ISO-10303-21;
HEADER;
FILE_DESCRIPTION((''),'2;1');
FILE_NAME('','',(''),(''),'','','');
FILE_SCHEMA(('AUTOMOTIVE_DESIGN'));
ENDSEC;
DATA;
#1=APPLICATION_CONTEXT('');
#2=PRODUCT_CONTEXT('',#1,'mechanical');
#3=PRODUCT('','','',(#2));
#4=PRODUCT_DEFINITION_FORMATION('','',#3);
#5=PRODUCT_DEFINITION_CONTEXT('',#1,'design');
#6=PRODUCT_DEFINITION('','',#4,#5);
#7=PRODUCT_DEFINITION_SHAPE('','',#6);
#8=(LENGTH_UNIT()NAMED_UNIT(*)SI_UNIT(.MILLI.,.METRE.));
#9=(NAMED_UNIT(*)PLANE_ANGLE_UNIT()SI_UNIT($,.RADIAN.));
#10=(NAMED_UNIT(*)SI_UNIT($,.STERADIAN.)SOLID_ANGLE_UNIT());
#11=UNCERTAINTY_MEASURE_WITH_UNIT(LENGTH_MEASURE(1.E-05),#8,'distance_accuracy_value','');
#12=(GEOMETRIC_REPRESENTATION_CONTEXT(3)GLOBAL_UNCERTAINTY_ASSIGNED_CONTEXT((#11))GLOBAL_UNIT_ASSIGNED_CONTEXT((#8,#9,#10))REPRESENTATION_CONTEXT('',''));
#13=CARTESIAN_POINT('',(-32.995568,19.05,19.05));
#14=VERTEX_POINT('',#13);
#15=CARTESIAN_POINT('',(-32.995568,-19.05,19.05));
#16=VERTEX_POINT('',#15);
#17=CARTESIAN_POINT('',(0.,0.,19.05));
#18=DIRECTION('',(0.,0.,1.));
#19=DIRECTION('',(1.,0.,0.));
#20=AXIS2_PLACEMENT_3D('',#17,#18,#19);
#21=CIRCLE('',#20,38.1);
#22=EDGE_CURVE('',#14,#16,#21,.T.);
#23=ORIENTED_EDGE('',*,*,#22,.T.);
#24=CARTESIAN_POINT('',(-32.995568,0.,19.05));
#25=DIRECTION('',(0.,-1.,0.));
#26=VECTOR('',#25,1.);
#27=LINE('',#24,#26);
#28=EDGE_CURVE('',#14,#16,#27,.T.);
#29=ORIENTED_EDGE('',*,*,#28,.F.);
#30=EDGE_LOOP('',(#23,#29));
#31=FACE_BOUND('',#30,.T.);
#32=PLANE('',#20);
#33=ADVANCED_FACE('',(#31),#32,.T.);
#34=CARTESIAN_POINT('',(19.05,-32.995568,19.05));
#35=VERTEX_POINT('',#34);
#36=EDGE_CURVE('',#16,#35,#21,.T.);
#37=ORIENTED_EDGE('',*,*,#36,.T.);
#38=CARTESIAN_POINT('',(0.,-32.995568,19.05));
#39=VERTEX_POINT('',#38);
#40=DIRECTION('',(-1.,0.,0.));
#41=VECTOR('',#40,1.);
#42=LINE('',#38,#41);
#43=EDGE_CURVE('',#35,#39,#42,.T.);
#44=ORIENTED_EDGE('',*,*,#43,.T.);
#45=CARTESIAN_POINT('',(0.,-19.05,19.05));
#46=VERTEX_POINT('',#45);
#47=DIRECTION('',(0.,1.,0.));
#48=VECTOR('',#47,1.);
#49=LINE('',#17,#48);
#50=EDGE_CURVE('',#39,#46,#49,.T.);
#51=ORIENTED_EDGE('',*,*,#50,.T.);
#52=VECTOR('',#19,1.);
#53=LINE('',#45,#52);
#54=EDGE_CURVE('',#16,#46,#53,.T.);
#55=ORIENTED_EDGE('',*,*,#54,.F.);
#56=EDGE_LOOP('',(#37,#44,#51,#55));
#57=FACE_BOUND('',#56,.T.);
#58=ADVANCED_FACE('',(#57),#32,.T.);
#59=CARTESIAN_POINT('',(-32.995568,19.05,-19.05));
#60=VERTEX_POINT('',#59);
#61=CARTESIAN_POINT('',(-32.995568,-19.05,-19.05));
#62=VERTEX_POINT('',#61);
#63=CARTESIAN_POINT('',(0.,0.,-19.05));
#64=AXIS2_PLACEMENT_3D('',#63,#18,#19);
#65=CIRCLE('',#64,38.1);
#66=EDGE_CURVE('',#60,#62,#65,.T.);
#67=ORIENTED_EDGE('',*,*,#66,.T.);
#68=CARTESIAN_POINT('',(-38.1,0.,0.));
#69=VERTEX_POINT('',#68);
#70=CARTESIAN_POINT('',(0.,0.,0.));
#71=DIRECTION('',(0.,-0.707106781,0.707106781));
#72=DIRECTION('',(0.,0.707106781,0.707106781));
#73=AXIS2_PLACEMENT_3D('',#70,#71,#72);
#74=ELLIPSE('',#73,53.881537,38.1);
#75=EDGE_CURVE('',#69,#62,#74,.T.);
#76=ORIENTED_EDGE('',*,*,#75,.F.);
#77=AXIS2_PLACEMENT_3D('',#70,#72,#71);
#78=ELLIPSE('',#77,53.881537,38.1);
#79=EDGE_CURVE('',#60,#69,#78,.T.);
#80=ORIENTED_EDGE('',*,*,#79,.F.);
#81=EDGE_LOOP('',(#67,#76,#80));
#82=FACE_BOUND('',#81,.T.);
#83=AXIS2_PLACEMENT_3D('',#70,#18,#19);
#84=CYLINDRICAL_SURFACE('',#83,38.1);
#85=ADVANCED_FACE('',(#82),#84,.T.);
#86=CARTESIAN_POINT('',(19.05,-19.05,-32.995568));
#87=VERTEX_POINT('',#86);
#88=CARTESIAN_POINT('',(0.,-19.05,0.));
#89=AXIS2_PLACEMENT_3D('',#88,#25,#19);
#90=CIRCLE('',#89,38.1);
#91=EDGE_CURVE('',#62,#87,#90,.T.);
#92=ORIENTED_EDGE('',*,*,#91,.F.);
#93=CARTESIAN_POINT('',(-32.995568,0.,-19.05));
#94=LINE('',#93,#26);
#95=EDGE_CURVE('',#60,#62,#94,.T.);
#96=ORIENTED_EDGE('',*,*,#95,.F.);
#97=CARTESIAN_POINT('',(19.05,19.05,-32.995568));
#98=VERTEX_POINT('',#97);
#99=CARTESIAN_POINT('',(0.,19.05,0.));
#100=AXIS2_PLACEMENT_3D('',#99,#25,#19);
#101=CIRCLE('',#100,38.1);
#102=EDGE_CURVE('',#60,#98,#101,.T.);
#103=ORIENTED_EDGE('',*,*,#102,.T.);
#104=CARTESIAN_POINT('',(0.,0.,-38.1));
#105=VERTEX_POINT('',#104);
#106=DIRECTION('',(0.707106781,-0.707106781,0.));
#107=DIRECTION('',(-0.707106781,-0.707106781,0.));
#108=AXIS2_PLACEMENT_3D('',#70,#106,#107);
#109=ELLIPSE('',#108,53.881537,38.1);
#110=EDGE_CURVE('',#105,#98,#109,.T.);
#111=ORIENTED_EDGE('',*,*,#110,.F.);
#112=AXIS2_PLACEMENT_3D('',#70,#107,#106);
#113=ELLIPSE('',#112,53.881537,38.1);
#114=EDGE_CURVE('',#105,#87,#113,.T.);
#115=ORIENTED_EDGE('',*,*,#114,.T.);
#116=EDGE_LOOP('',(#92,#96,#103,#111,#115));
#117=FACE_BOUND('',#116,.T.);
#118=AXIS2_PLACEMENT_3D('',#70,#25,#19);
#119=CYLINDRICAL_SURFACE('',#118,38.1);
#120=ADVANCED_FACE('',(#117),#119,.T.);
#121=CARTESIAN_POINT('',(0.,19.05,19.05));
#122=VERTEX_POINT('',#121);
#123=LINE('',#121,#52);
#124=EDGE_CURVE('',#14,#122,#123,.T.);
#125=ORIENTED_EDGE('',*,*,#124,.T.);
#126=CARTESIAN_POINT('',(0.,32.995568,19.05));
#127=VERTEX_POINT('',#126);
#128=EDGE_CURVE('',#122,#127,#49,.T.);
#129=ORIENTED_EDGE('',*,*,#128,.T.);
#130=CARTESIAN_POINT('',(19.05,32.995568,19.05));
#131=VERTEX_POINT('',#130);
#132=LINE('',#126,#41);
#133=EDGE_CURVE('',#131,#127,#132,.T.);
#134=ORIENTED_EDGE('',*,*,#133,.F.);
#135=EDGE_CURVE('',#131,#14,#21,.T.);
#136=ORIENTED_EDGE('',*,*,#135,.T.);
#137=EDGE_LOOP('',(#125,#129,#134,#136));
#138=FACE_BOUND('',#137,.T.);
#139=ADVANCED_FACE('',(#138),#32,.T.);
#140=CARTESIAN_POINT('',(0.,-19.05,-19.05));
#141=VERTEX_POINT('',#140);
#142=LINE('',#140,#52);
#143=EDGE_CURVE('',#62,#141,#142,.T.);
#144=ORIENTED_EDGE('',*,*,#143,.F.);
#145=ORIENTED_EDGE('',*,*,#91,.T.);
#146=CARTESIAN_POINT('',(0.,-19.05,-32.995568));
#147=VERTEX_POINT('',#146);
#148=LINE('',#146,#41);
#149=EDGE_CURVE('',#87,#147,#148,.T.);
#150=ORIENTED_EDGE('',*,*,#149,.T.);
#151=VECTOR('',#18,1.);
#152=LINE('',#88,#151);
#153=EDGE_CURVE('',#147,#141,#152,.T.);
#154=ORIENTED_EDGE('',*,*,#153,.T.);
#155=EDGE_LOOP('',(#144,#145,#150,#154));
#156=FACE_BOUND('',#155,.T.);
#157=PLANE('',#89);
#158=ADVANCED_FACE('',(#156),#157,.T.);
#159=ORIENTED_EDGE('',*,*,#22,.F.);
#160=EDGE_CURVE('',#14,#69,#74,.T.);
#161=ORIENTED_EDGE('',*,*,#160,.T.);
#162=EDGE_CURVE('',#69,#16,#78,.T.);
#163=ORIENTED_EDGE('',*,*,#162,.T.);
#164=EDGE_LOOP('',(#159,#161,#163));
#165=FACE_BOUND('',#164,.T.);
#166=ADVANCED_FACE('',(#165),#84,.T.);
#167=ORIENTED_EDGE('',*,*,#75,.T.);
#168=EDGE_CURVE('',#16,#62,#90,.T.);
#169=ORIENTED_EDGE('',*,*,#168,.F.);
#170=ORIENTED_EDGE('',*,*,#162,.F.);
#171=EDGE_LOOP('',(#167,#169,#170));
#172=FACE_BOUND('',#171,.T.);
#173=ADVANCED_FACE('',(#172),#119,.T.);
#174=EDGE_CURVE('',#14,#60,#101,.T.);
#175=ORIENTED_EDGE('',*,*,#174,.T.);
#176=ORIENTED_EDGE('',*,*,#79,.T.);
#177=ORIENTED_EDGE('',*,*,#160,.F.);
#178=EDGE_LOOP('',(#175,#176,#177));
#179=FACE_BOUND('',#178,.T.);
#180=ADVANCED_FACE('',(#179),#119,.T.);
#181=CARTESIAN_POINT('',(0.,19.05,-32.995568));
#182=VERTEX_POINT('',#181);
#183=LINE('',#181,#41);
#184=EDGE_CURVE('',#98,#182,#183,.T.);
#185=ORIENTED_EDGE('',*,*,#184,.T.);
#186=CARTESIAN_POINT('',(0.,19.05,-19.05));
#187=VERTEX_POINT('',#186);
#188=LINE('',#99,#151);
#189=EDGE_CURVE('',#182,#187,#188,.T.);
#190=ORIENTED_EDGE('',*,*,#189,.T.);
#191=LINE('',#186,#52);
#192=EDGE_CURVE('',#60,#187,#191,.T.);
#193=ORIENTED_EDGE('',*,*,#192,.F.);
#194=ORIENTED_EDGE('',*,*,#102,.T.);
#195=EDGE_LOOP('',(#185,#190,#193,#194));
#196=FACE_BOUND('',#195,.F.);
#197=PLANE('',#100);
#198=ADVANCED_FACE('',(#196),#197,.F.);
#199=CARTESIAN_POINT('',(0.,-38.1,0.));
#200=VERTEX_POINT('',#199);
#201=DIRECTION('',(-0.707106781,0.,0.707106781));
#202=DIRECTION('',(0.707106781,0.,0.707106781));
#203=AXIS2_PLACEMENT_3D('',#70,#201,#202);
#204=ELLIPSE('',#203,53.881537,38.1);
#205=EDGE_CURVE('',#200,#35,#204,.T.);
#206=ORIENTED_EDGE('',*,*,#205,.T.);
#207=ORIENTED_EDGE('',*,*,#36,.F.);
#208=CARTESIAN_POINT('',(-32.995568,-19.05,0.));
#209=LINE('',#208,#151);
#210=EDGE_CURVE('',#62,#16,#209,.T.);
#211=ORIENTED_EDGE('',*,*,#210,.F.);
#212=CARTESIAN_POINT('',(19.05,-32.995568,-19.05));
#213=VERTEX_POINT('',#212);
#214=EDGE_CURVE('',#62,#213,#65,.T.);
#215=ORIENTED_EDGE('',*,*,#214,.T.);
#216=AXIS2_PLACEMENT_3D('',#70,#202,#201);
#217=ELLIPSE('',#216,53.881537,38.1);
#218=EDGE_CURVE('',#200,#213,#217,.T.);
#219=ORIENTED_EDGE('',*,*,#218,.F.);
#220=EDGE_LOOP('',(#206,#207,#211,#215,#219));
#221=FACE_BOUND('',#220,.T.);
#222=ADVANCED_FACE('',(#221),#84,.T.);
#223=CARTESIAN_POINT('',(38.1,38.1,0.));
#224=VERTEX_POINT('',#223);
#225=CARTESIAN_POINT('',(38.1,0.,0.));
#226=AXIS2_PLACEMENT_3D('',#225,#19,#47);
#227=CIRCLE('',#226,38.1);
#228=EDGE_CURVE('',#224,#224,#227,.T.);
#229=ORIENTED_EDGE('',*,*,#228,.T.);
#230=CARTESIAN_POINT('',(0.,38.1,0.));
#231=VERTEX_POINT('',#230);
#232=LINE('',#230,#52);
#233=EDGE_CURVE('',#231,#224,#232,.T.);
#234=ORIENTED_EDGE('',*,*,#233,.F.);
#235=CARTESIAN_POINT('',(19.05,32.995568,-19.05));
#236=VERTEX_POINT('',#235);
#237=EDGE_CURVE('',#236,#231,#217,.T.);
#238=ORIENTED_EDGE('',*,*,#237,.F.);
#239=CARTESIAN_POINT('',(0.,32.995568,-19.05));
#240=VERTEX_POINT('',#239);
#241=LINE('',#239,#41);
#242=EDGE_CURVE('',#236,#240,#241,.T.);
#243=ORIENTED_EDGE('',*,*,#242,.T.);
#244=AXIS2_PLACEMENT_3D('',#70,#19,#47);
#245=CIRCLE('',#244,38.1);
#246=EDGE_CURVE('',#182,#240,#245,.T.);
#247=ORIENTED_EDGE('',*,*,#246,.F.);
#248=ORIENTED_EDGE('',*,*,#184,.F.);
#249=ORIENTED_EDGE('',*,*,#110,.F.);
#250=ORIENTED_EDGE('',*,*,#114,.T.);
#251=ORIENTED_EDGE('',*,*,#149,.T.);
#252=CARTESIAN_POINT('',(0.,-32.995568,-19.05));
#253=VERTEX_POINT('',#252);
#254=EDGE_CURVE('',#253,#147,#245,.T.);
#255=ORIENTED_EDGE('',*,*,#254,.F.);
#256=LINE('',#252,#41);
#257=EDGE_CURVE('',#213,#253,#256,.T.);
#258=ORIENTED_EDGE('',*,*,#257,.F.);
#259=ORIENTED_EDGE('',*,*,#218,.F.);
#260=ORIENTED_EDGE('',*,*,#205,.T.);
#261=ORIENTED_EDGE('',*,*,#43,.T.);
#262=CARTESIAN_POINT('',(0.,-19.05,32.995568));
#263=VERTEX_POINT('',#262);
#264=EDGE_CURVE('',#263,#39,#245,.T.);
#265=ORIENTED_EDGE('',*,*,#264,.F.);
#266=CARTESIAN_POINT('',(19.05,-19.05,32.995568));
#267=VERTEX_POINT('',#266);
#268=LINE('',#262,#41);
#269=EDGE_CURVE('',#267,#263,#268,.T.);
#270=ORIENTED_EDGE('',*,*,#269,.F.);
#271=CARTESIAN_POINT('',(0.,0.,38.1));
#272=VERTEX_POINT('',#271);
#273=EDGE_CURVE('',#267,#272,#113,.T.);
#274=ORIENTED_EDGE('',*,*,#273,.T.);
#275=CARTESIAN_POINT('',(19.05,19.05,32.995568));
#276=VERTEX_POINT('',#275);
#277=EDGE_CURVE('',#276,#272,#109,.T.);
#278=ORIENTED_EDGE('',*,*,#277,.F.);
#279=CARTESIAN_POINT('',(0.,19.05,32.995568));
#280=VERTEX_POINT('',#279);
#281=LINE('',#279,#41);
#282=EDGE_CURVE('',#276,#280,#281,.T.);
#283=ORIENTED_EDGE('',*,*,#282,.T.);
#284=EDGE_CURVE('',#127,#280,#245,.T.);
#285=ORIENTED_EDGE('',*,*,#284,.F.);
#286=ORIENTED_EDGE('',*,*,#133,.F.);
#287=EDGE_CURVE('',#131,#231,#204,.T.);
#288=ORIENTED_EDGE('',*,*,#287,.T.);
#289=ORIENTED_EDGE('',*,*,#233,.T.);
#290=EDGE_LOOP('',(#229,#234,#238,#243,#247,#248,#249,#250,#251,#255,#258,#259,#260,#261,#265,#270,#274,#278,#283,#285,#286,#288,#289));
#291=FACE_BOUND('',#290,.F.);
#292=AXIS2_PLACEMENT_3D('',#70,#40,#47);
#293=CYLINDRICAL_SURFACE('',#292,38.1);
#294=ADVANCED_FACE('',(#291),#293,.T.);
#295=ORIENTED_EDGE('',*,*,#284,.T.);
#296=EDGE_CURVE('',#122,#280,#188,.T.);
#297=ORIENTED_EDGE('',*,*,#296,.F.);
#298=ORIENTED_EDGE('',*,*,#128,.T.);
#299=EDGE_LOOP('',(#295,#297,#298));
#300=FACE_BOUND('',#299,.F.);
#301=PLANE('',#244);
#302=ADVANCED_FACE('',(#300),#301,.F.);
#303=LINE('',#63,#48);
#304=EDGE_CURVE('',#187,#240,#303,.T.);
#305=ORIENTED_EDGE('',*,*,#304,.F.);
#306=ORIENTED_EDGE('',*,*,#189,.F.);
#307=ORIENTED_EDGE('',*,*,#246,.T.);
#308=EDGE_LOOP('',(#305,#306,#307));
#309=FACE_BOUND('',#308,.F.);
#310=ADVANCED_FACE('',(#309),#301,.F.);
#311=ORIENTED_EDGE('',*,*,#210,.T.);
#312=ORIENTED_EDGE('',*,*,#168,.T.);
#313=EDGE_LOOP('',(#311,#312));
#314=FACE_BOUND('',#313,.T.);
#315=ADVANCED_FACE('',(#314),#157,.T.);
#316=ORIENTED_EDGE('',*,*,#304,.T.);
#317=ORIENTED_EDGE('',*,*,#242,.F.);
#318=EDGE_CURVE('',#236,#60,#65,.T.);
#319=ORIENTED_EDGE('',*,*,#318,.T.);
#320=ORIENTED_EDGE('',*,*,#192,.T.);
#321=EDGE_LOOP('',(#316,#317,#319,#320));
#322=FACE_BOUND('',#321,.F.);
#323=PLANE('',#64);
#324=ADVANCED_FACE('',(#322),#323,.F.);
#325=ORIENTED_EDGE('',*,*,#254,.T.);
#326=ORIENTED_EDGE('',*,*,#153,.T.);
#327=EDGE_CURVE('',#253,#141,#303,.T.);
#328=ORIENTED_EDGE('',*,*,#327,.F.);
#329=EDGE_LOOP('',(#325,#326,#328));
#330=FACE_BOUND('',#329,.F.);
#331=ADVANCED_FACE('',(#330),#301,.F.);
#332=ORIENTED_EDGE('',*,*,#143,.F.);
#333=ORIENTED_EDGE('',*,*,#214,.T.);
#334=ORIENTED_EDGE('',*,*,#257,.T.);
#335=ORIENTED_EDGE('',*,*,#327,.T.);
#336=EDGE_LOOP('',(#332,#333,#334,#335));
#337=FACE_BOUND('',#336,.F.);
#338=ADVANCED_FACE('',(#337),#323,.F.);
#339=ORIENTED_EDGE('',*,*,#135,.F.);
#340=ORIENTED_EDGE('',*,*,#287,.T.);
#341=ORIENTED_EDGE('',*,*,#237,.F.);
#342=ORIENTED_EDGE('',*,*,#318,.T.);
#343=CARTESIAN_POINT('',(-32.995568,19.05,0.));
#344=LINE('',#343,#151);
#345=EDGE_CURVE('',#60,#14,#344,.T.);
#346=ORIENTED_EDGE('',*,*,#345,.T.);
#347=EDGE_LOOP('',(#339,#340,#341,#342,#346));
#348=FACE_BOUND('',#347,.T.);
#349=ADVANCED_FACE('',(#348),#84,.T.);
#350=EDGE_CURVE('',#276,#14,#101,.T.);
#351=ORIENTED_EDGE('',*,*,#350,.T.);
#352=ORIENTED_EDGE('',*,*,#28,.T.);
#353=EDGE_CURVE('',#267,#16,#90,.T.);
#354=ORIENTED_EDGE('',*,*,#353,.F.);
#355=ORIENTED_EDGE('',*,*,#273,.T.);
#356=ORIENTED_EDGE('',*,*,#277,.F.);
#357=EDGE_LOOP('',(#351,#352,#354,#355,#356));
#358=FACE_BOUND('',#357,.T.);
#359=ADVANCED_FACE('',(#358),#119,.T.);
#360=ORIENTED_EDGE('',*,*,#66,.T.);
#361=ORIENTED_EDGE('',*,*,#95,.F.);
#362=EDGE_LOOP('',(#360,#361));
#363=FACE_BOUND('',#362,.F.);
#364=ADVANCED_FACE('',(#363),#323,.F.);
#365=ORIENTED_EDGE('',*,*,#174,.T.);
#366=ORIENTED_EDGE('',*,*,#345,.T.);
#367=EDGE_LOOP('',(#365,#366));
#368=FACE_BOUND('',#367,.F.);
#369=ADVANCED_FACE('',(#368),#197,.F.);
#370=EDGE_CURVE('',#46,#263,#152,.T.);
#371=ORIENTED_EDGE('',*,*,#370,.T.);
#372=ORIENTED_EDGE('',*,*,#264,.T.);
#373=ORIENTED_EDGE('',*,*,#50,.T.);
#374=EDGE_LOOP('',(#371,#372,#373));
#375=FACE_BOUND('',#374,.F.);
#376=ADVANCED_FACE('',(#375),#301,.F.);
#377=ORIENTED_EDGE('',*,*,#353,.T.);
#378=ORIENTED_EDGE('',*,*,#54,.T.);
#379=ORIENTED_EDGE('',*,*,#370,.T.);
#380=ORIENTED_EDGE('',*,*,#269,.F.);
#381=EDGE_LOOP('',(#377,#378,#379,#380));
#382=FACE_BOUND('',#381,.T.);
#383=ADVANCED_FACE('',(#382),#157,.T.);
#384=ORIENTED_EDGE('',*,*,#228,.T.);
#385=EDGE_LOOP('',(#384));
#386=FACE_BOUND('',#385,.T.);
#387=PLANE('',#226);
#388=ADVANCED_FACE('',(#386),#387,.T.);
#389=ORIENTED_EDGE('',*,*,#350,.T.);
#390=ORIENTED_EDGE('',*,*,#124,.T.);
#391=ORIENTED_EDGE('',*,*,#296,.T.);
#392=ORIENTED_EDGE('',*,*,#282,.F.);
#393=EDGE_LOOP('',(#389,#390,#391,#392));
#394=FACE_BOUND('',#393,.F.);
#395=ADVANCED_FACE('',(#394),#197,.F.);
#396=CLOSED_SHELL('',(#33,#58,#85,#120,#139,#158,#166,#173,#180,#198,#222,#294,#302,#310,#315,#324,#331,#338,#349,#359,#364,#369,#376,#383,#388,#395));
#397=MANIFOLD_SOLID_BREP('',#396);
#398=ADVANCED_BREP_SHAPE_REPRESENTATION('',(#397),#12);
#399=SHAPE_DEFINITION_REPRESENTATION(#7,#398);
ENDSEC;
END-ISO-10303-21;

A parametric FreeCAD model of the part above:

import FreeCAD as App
import Part
import Sketcher
Q = App.Units.Quantity

doc = App.newDocument("Part")
body = doc.addObject("PartDesign::Body", "Body")

# Sketch on XY plane
sketch1 = body.newObject("Sketcher::SketchObject", "Sketch")
sketch1.AttachmentSupport = (doc.getObject("XY_Plane"), [""])
sketch1.MapMode = "FlatFace"
sketch1.addGeometry(Part.Circle(App.Vector(0, 0, 0), App.Vector(0, 0, 1), 38), False)
sketch1.addConstraint([
    Sketcher.Constraint("Coincident", 0, 3, -1, 1),
    Sketcher.Constraint("Diameter", 0, Q("3 in")),
])
pad1 = body.newObject("PartDesign::Pad", "Pad")
pad1.Profile = sketch1
pad1.Length = Q("1.5 in")
pad1.Midplane = True

# Sketch on XZ plane
sketch2 = body.newObject("Sketcher::SketchObject", "Sketch001")
sketch2.AttachmentSupport = (doc.getObject("XZ_Plane"), [""])
sketch2.MapMode = "FlatFace"
sketch2.addGeometry(Part.Circle(App.Vector(0, 0, 0), App.Vector(0, 0, 1), 38), False)
sketch2.addConstraint([
    Sketcher.Constraint("Coincident", 0, 3, -1, 1),
    Sketcher.Constraint("Diameter", 0, Q("3 in")),
])
pad2 = body.newObject("PartDesign::Pad", "Pad001")
pad2.Profile = sketch2
pad2.Length = Q("1.5 in")
pad2.Midplane = True

# Sketch on YZ plane
sketch3 = body.newObject("Sketcher::SketchObject", "Sketch002")
sketch3.AttachmentSupport = (doc.getObject("YZ_Plane"), [""])
sketch3.MapMode = "FlatFace"
sketch3.addGeometry(Part.Circle(App.Vector(0, 0, 0), App.Vector(0, 0, 1), 38), False)
sketch3.addConstraint([
    Sketcher.Constraint("Coincident", 0, 3, -1, 1),
    Sketcher.Constraint("Diameter", 0, Q("3 in")),
])
pad3 = body.newObject("PartDesign::Pad", "Pad002")
pad3.Profile = sketch3
pad3.Length = Q("1.5 in")

doc.recompute()
